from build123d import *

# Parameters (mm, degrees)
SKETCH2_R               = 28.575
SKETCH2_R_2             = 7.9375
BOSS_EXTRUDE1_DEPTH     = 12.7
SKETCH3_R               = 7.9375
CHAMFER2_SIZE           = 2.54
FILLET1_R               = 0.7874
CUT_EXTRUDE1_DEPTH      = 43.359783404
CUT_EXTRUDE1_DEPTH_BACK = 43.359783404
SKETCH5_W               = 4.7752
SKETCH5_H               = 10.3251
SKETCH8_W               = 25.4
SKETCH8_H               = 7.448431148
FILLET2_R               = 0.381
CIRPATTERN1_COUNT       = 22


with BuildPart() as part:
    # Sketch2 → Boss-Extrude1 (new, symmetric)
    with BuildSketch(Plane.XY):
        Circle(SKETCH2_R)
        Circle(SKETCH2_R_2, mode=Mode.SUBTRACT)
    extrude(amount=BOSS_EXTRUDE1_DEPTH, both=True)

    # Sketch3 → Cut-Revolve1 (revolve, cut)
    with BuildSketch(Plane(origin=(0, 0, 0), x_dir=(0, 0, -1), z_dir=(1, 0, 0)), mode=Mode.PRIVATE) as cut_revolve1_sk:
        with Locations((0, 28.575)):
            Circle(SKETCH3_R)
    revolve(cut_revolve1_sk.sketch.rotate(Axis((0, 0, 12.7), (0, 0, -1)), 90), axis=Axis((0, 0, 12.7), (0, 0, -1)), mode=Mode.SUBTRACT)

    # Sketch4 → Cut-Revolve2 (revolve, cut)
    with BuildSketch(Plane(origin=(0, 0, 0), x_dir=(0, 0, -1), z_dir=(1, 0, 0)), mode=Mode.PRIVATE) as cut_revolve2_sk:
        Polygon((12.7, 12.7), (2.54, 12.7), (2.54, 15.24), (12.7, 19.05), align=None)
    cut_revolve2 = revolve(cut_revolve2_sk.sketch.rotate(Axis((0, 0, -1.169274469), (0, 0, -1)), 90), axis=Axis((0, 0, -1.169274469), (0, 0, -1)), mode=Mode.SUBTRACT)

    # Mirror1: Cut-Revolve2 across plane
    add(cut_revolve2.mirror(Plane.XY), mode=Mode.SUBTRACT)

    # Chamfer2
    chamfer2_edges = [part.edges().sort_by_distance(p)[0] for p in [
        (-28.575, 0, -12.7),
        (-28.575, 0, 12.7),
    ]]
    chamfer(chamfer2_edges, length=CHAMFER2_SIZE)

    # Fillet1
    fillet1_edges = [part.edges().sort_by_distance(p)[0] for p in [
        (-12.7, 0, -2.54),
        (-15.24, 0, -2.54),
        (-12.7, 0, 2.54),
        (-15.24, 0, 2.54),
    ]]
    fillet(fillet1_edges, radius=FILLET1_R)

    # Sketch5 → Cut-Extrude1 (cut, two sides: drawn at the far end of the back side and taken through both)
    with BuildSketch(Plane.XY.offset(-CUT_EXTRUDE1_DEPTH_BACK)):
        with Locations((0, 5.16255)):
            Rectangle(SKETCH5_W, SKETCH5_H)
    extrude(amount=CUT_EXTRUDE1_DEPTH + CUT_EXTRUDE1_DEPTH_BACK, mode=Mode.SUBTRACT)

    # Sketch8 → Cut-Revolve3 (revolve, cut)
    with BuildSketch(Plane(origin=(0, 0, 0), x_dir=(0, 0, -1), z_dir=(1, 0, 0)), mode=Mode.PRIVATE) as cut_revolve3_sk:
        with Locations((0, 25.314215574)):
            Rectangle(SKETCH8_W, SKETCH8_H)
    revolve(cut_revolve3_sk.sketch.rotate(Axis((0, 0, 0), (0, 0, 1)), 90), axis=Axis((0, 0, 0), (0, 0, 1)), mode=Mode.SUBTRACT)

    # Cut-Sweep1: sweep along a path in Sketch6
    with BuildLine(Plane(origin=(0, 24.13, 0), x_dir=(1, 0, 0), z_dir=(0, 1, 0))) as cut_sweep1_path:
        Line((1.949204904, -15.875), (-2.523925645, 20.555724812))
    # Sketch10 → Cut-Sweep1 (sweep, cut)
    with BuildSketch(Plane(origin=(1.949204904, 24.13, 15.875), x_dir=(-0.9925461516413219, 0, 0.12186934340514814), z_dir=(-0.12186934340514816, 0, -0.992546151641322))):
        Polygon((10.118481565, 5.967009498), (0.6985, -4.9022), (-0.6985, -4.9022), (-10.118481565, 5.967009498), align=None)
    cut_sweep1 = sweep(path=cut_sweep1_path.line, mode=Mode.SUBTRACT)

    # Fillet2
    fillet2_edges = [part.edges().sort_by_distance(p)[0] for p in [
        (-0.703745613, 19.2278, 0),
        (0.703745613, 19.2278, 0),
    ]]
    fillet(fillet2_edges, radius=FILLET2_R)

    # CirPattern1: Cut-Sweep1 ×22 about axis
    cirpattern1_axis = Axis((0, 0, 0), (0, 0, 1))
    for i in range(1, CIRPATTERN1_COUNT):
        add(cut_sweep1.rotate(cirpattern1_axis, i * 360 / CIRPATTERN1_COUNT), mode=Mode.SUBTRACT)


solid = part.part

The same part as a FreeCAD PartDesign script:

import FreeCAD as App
import Part
import Sketcher

V = App.Vector
Q = App.Units.Quantity


def edges_at(feature, points):
    """Names of the edges that pass closest to the given points."""
    edges = feature.Shape.Edges
    near = lambda p: min(range(len(edges)), key=lambda i: edges[i].distToShape(Part.Vertex(*p))[0])
    return sorted({f"Edge{near(p) + 1}" for p in points})


def add_polygon(sketch, points):
    """Adds a closed chain of lines whose ends are joined by coincident constraints."""
    first, n = sketch.GeometryCount, len(points)
    for a, b in zip(points, points[1:] + points[:1]):
        sketch.addGeometry(Part.LineSegment(App.Vector(*a, 0), App.Vector(*b, 0)), False)
    for i in range(n):
        sketch.addConstraint(Sketcher.Constraint("Coincident", first + i, 2, first + (i + 1) % n, 1))

doc = App.newDocument("Part")
params = doc.addObject("Spreadsheet::Sheet", "Params")
for row, (alias, value) in enumerate([
    ("sketch1_diameter", "2.25 in"),
    ("sketch1_diameter2", "0.625 in"),
    ("pad1_length", "1 in"),
    ("sketch2_diameter", "0.625 in"),
    ("groove_angle", "360 deg"),
    ("sketch3_width", "0.1 in"),
    ("sketch3_height", "0.4 in"),
    ("sketch3_width2", "0.25 in"),
    ("groove2_angle", "360 deg"),
    ("chamfer_size", "0.1 in"),
    ("fillet_radius", "0.031 in"),
    ("sketch4_width", "0.188 in"),
    ("sketch5_height", "1 in"),
    ("groove3_angle", "360 deg"),
    ("sketch6_width", "0.055 in"),
    ("fillet2_radius", "0.015 in"),
], start=1):
    params.set(f"A{row}", alias)
    params.set(f"B{row}", "=" + value)
    params.setAlias(f"B{row}", alias)

body = doc.addObject("PartDesign::Body", "Body")

sketch1 = body.newObject("Sketcher::SketchObject", "Sketch")
sketch1.AttachmentSupport = (doc.getObject("XY_Plane"), [""])
sketch1.MapMode = "FlatFace"
sketch1.addGeometry([
    Part.Circle(V(0, 0, 0), V(0, 0, 1), 29),
    Part.Circle(V(0, 0, 0), V(0, 0, 1), 8),
], False)
sketch1.addConstraint([
    Sketcher.Constraint("Coincident", 0, 3, -1, 1),
    Sketcher.Constraint("Coincident", 1, 3, -1, 1),
    Sketcher.Constraint("Diameter", 0, Q("2.25 in")),
    Sketcher.Constraint("Diameter", 1, Q("0.625 in")),
])
sketch1.setExpression("Constraints[2]", "Params.sketch1_diameter")
sketch1.setExpression("Constraints[3]", "Params.sketch1_diameter2")
pad1 = body.newObject("PartDesign::Pad", "Pad")
pad1.Profile = sketch1
pad1.setExpression("Length", "Params.pad1_length")
pad1.Midplane = True

sketch2 = body.newObject("Sketcher::SketchObject", "Sketch001")
sketch2.AttachmentSupport = (doc.getObject("YZ_Plane"), [""])
sketch2.MapMode = "FlatFace"
sketch2.addGeometry(Part.Circle(V(29, 0, 0), V(0, 0, 1), 8), False)
sketch2.addConstraint([
    Sketcher.Constraint("PointOnObject", 0, 3, -1),
    Sketcher.Constraint("Diameter", 0, Q("0.625 in")),
    Sketcher.Constraint("DistanceX", -1, 1, 0, 3, Q("1.125 in")),
])
sketch2.setExpression("Constraints[1]", "Params.sketch2_diameter")
groove = body.newObject("PartDesign::Groove", "Groove")
groove.Profile = sketch2
groove.ReferenceAxis = (sketch2, ["V_Axis"])
groove.setExpression("Angle", "Params.groove_angle")

sketch3 = body.newObject("Sketcher::SketchObject", "Sketch002")
sketch3.AttachmentSupport = (doc.getObject("YZ_Plane"), [""])
sketch3.MapMode = "FlatFace"
add_polygon(sketch3, [(12.7, -2.5), (12.7, -12.7), (19.1, -12.7), (15.2, -2.5)])
sketch3.addConstraint([
    Sketcher.Constraint("Vertical", 0),
    Sketcher.Constraint("Horizontal", 1),
    Sketcher.Constraint("Horizontal", 3),
    Sketcher.Constraint("DistanceX", 3, 2, 3, 1, Q("0.1 in")),
    Sketcher.Constraint("DistanceY", 0, 2, 0, 1, Q("0.4 in")),
    Sketcher.Constraint("DistanceX", 1, 1, 1, 2, Q("0.25 in")),
    Sketcher.Constraint("DistanceX", -1, 1, 0, 2, Q("0.5 in")),
    Sketcher.Constraint("DistanceY", 0, 2, -1, 1, Q("0.5 in")),
])
sketch3.setExpression("Constraints[7]", "Params.sketch3_width")
sketch3.setExpression("Constraints[8]", "Params.sketch3_height")
sketch3.setExpression("Constraints[9]", "Params.sketch3_width2")
groove2 = body.newObject("PartDesign::Groove", "Groove001")
groove2.Profile = sketch3
groove2.ReferenceAxis = (sketch3, ["V_Axis"])
groove2.setExpression("Angle", "Params.groove2_angle")
doc.recompute()

mirrored = body.newObject("PartDesign::Mirrored", "Mirrored")
mirrored.Originals = [groove2]
mirrored.MirrorPlane = (doc.getObject("XY_Plane"), [""])
body.Tip = mirrored
doc.recompute()

chamfer = body.newObject("PartDesign::Chamfer", "Chamfer")
chamfer.Base = (mirrored, edges_at(mirrored, [(-28.575, 0, -12.7), (-28.575, 0, 12.7)]))
chamfer.setExpression("Size", "Params.chamfer_size")
doc.recompute()

fillet = body.newObject("PartDesign::Fillet", "Fillet")
fillet.Base = (chamfer, edges_at(chamfer, [
    (-12.7, 0, -2.54),
    (-15.24, 0, -2.54),
    (-12.7, 0, 2.54),
    (-15.24, 0, 2.54),
]))
fillet.setExpression("Radius", "Params.fillet_radius")

sketch4 = body.newObject("Sketcher::SketchObject", "Sketch003")
sketch4.AttachmentSupport = (doc.getObject("XY_Plane"), [""])
sketch4.MapMode = "FlatFace"
add_polygon(sketch4, [(-2.4, 10.3), (-2.4, 0), (2.4, 0), (2.4, 10.3)])
sketch4.addConstraint([
    Sketcher.Constraint("Vertical", 0),
    Sketcher.Constraint("Horizontal", 1),
    Sketcher.Constraint("Vertical", 2),
    Sketcher.Constraint("Horizontal", 3),
    Sketcher.Constraint("Symmetric", 0, 2, 1, 2, -1, 1),
    Sketcher.Constraint("DistanceX", 1, 1, 1, 2, Q("0.188 in")),
    Sketcher.Constraint("DistanceY", 0, 2, 0, 1, Q("0.4065 in")),
])
sketch4.setExpression("Constraints[9]", "Params.sketch4_width")
pocket1 = body.newObject("PartDesign::Pocket", "Pocket")
pocket1.Profile = sketch4
pocket1.Type = "ThroughAll"
pocket1.Midplane = True

sketch5 = body.newObject("Sketcher::SketchObject", "Sketch004")
sketch5.AttachmentSupport = (doc.getObject("YZ_Plane"), [""])
sketch5.MapMode = "FlatFace"
add_polygon(sketch5, [(29, 13), (22, 13), (22, -13), (29, -13)])
sketch5.addConstraint([
    Sketcher.Constraint("Horizontal", 0),
    Sketcher.Constraint("Vertical", 1),
    Sketcher.Constraint("Horizontal", 2),
    Sketcher.Constraint("Vertical", 3),
    Sketcher.Constraint("DistanceY", 1, 2, 1, 1, Q("1 in")),
    Sketcher.Constraint("DistanceY", -1, 1, 0, 2, Q("0.5 in")),
    Sketcher.Constraint("DistanceX", -1, 1, 0, 2, Q("0.85 in")),
    Sketcher.Constraint("DistanceX", 0, 2, 0, 1, Q("7.448431 mm")),
])
sketch5.setExpression("Constraints[8]", "Params.sketch5_height")
groove3 = body.newObject("PartDesign::Groove", "Groove002")
groove3.Profile = sketch5
groove3.ReferenceAxis = (sketch5, ["V_Axis"])
groove3.setExpression("Angle", "Params.groove3_angle")

sketch6 = body.newObject("Sketcher::SketchObject", "Sketch005")
sketch6.Placement = App.Placement(V(1.949205, 24.13, 15.875), App.Rotation(V(-0.992546152, 0, 0.121869343), V(0, 1.000000001, 0), V(-0.121869343, 0, -0.992546152), "ZXY"))
add_polygon(sketch6, [(0.7, -4.9), (10.1, 6), (-10.1, 6), (-0.7, -4.9)])
sketch6.addConstraint([
    Sketcher.Constraint("Horizontal", 1),
    Sketcher.Constraint("Horizontal", 3),
    Sketcher.Constraint("Equal", 0, 2),
    Sketcher.Constraint("DistanceX", 3, 1, 3, 2, Q("0.055 in")),
    Sketcher.Constraint("DistanceY", 2, 2, -1, 1, Q("0.193 in")),
    Sketcher.Constraint("DistanceX", 2, 2, -1, 1, Q("0.0275 in")),
    Sketcher.Constraint("DistanceX", 1, 2, 1, 1, Q("20.236963 mm")),
    Sketcher.Constraint("DistanceY", -1, 1, 0, 2, Q("5.96701 mm")),
])
sketch6.setExpression("Constraints[7]", "Params.sketch6_width")

sketch7 = body.newObject("Sketcher::SketchObject", "Sketch006")
sketch7.Placement = App.Placement(V(0, 0, 0), App.Rotation(V(-0.121869343, 0, -0.992546152), V(0, 1.000000001, 0), V(0.992546152, 0, -0.121869343), "ZXY"))
sketch7.addGeometry(Part.LineSegment(V(-16, 24, 0), V(21, 24, 0)), False)
sketch7.addConstraint([
    Sketcher.Constraint("Horizontal", 0),
    Sketcher.Constraint("DistanceY", -1, 1, 0, 1, Q("0.95 in")),
    Sketcher.Constraint("DistanceX", 0, 1, 0, 2, Q("36.704313 mm")),
    Sketcher.Constraint("DistanceX", 0, 1, -1, 1, Q("15.994218 mm")),
])
doc.recompute()

subtractivepipe = body.newObject("PartDesign::SubtractivePipe", "SubtractivePipe")
subtractivepipe.Profile = sketch6
subtractivepipe.Spine = (sketch7, ["Edge1"])
doc.recompute()

fillet2 = body.newObject("PartDesign::Fillet", "Fillet001")
fillet2.Base = (subtractivepipe, edges_at(subtractivepipe, [(-0.704, 19.228, 0), (0.704, 19.228, 0)]))
fillet2.setExpression("Radius", "Params.fillet2_radius")
doc.recompute()

polarpattern = body.newObject("PartDesign::PolarPattern", "PolarPattern")
polarpattern.Originals = [subtractivepipe]
polarpattern.Axis = (doc.getObject("Z_Axis"), [""])
polarpattern.Angle = 360
polarpattern.Occurrences = 22
body.Tip = polarpattern

doc.recompute()
